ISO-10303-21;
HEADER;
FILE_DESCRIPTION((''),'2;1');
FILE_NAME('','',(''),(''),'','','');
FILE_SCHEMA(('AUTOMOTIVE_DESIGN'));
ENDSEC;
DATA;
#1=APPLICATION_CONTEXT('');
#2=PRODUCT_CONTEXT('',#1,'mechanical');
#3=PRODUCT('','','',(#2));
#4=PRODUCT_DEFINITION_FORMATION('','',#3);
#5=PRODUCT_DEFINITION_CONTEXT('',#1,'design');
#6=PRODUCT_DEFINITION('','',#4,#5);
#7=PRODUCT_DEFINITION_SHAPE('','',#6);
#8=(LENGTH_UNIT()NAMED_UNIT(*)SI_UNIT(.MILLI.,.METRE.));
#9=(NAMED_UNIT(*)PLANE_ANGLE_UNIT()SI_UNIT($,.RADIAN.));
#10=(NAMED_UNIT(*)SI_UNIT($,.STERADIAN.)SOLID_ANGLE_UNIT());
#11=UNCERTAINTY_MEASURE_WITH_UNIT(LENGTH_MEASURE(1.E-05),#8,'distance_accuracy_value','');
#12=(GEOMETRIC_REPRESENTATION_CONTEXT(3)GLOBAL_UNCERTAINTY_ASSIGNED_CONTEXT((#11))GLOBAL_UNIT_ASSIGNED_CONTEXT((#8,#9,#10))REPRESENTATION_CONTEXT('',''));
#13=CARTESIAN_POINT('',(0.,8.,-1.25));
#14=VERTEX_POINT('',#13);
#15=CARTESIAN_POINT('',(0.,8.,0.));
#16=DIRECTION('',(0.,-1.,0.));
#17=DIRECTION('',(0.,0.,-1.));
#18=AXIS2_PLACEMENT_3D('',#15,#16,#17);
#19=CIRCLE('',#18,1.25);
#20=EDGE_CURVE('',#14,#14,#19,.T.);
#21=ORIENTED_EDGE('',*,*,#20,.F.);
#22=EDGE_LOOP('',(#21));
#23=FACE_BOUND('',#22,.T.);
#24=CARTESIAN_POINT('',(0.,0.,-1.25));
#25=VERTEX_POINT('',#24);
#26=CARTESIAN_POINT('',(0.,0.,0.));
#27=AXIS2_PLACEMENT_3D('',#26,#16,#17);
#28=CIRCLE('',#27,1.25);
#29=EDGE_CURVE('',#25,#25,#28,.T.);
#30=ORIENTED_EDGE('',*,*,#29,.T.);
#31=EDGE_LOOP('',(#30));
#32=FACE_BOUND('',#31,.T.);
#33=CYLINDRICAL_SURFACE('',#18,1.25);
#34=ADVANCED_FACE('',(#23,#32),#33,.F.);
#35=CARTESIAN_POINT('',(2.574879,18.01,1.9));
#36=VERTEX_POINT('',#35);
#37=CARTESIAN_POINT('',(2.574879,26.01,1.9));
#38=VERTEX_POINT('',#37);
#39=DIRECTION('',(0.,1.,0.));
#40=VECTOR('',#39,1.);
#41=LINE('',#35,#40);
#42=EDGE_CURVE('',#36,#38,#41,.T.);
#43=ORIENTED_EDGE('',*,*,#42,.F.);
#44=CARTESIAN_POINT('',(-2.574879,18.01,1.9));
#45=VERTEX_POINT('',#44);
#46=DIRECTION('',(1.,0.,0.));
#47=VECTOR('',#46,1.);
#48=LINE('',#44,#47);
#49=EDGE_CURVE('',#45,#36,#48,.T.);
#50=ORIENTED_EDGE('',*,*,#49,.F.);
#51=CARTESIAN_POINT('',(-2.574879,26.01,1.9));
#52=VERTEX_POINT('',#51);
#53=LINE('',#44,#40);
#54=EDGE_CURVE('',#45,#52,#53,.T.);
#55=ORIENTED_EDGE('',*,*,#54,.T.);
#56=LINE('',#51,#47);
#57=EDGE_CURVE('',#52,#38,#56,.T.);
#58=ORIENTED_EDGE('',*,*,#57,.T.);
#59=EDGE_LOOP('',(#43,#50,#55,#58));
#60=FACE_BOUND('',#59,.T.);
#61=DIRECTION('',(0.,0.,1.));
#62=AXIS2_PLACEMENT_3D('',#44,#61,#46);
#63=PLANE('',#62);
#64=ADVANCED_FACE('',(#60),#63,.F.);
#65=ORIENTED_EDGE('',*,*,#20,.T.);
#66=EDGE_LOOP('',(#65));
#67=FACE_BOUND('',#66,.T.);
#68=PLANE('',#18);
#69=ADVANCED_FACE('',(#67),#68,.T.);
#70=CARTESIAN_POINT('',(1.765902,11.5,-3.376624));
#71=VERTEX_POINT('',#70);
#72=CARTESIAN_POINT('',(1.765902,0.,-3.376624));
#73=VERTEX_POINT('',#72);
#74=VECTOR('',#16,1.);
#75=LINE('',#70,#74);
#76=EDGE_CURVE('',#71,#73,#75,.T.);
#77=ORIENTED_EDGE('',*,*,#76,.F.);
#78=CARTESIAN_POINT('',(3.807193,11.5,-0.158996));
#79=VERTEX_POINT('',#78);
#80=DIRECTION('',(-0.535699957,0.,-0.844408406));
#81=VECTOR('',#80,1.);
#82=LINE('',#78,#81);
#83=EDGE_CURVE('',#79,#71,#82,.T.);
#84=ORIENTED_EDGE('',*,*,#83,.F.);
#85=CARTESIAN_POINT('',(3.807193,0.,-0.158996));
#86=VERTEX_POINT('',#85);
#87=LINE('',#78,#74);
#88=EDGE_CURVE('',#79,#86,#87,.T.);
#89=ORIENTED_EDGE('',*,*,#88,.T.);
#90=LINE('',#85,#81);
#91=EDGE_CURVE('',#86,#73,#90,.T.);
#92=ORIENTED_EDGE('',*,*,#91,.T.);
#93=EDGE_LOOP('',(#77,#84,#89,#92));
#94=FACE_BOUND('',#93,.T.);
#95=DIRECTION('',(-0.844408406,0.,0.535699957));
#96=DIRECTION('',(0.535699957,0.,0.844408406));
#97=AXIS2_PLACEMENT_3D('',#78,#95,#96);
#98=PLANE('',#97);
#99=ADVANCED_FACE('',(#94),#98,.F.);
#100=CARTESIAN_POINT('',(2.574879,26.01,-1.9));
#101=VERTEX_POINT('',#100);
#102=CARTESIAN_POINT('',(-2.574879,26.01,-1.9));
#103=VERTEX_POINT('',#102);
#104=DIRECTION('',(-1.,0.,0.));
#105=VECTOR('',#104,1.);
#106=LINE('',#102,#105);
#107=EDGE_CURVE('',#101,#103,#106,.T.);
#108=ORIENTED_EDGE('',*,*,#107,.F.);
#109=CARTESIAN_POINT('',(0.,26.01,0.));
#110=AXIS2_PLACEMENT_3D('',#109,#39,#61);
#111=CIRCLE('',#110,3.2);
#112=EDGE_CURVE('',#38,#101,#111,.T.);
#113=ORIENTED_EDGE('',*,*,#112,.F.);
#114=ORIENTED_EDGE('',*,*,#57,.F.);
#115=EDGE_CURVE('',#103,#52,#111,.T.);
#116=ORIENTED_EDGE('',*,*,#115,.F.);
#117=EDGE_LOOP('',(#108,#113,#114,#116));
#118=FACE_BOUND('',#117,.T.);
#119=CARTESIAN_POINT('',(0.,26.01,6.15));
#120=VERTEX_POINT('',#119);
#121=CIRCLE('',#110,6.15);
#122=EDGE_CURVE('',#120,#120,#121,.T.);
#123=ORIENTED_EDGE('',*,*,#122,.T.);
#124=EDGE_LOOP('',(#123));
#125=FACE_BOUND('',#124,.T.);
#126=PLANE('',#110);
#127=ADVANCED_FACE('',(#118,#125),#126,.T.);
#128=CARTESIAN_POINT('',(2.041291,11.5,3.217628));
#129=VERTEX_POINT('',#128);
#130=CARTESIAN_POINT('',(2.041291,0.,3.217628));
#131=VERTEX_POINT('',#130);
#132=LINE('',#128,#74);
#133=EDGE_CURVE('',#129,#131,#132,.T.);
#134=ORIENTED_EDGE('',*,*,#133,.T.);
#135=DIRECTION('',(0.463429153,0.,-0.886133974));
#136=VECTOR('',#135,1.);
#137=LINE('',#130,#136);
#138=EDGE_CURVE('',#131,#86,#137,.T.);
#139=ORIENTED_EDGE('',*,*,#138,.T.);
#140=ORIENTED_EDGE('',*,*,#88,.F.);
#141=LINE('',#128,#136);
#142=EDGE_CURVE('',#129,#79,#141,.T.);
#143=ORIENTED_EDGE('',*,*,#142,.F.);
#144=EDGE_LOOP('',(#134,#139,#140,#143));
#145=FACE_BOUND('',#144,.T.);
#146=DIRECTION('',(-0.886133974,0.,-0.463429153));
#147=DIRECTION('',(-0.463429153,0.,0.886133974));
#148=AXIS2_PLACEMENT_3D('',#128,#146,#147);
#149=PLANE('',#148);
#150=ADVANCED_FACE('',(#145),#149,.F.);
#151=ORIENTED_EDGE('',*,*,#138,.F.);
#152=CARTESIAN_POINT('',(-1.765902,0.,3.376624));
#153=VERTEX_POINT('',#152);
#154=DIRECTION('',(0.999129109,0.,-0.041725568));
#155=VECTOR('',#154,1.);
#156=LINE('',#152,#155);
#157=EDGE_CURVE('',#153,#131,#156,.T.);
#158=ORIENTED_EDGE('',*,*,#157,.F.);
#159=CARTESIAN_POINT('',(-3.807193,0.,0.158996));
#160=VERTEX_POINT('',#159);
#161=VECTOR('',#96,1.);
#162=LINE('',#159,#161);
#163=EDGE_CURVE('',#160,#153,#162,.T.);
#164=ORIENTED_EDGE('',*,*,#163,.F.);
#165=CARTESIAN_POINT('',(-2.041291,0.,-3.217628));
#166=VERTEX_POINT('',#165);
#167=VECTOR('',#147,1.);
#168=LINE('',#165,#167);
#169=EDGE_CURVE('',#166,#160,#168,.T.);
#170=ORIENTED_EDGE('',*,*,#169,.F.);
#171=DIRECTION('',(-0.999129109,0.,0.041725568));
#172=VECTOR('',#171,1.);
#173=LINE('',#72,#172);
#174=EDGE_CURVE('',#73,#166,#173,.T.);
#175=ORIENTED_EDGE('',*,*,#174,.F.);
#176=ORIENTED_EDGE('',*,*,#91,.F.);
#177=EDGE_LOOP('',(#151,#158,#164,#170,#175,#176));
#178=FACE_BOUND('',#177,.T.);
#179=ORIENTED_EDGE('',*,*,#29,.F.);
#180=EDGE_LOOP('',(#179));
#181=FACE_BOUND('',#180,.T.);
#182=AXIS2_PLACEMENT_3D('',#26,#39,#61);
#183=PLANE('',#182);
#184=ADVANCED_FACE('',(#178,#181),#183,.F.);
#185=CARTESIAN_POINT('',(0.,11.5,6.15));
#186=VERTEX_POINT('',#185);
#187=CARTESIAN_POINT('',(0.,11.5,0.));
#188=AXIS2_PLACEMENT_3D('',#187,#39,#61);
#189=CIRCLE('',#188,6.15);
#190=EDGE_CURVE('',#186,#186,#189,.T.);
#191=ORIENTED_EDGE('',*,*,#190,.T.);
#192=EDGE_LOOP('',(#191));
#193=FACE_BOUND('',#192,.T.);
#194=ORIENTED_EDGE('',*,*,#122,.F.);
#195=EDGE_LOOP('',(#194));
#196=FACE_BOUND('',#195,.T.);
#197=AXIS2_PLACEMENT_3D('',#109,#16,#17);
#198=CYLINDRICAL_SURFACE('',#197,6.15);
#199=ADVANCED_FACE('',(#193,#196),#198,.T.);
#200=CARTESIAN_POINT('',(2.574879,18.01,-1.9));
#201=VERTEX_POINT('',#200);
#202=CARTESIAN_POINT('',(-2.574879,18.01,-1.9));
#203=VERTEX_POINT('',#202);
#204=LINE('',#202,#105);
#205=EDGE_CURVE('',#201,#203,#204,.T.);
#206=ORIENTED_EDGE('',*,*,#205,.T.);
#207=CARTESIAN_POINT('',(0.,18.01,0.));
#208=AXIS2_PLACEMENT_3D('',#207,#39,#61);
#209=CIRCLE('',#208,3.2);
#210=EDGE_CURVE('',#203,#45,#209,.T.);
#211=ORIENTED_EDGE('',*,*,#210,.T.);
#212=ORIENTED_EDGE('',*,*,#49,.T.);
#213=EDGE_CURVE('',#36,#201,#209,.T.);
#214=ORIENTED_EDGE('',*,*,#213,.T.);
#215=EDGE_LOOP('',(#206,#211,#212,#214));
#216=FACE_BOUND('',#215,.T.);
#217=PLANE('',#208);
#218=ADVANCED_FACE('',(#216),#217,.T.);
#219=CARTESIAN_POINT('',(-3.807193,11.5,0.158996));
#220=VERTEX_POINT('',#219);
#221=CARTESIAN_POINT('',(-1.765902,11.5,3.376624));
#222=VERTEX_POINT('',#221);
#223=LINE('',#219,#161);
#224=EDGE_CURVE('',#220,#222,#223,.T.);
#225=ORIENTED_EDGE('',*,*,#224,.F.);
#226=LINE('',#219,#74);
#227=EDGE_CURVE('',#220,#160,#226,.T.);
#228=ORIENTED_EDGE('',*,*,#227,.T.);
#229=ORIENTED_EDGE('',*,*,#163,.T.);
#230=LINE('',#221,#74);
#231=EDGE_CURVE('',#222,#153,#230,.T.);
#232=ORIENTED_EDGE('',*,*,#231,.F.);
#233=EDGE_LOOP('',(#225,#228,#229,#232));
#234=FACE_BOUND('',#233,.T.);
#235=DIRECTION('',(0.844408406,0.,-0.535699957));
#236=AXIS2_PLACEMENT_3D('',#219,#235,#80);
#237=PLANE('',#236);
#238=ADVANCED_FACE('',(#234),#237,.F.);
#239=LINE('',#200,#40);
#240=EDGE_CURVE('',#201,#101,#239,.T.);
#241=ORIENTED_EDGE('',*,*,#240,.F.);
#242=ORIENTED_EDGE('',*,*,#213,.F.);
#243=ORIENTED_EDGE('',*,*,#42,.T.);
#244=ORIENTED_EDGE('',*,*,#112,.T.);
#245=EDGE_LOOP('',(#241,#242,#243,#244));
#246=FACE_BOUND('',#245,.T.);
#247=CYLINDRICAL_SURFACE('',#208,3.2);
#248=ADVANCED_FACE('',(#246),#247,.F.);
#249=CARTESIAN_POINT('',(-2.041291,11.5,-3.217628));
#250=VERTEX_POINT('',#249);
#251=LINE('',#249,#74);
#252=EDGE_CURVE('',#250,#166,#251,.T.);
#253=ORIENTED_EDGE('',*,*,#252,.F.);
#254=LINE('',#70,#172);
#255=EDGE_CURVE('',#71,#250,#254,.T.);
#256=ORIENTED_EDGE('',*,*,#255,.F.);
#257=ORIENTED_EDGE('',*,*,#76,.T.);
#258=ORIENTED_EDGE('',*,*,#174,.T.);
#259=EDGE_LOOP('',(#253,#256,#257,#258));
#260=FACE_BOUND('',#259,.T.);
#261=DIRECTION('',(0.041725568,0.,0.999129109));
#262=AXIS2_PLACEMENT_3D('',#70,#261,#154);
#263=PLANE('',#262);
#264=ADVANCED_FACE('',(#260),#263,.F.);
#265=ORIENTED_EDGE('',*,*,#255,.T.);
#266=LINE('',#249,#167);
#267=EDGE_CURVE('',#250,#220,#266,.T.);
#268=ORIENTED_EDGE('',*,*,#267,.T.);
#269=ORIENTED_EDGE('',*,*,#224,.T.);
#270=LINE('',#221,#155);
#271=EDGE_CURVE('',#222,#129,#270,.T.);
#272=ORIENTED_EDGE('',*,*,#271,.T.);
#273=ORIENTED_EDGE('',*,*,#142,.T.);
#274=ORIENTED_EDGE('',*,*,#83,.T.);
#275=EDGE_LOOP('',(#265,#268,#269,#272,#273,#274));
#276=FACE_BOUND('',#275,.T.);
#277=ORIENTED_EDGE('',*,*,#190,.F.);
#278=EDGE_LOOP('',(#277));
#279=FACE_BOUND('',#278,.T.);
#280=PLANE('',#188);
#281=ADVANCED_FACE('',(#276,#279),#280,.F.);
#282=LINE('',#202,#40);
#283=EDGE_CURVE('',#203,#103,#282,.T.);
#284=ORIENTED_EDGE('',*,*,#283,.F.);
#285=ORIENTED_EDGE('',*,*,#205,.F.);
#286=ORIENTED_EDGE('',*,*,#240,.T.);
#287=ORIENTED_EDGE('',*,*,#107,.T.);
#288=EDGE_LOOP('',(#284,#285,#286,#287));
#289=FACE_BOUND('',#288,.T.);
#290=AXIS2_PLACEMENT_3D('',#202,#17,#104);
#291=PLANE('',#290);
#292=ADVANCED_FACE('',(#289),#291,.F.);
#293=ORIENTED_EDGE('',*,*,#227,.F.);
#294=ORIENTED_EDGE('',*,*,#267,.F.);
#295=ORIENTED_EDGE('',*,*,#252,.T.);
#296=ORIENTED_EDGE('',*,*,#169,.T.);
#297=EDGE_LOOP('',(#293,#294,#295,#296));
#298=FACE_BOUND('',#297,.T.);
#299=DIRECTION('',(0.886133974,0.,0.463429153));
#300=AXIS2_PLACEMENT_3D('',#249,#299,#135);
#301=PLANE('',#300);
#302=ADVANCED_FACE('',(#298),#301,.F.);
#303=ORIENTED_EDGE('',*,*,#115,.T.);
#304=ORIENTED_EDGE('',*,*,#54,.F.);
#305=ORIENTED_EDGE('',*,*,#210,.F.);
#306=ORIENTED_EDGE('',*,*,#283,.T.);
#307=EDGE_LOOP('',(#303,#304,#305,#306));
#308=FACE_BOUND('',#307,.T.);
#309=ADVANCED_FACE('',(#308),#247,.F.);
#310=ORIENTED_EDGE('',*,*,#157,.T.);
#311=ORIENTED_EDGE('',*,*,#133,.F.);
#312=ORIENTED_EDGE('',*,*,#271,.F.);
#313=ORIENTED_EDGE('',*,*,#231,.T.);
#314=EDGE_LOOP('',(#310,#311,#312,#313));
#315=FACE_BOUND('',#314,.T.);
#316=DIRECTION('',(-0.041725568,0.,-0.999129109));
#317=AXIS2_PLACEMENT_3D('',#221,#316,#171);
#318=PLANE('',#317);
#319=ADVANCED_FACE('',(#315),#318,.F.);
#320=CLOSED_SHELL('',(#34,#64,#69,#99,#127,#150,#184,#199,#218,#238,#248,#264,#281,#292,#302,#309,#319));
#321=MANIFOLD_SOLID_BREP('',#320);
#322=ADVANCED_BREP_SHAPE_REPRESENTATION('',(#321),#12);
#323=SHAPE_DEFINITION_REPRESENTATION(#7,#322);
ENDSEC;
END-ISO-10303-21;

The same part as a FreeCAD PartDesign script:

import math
import FreeCAD as App
import Part
import Sketcher

V = App.Vector


def add_polygon(sketch, points):
    """Adds a closed chain of lines whose ends are joined by coincident constraints."""
    first, n = sketch.GeometryCount, len(points)
    for a, b in zip(points, points[1:] + points[:1]):
        sketch.addGeometry(Part.LineSegment(App.Vector(*a, 0), App.Vector(*b, 0)), False)
    for i in range(n):
        sketch.addConstraint(Sketcher.Constraint("Coincident", first + i, 2, first + (i + 1) % n, 1))

doc = App.newDocument("Part")
body = doc.addObject("PartDesign::Body", "Body")

# Sketch on XZ plane
sketch1 = body.newObject("Sketcher::SketchObject", "Sketch")
sketch1.AttachmentSupport = (doc.getObject("XZ_Plane"), [""])
sketch1.MapMode = "FlatFace"
add_polygon(sketch1, [(2.041291, 3.217628), (3.807193, -0.158996), (1.765902, -3.376624), (-2.041291, -3.217628), (-3.807193, 0.158996), (-1.765902, 3.376624)])  # lines 0-5
sketch1.addConstraint(Sketcher.Constraint("Symmetric", 0, 2, 3, 2, -1, 1))
sketch1.addConstraint(Sketcher.Constraint("Symmetric", 1, 2, 4, 2, -1, 1))
sketch1.addConstraint(Sketcher.Constraint("Symmetric", 2, 2, 5, 2, -1, 1))
sketch1.addConstraint(Sketcher.Constraint("Equal", 0, 1))
sketch1.addConstraint(Sketcher.Constraint("Equal", 1, 2))
sketch1.addConstraint(Sketcher.Constraint("Distance", 0, 3.810512))
sketch1.addConstraint(Sketcher.Constraint("DistanceX", 2, 2, -1, 1, 2.041291))
sketch1.addConstraint(Sketcher.Constraint("DistanceY", 2, 2, -1, 1, 3.217628))
sketch1.addConstraint(Sketcher.Constraint("DistanceX", 1, 2, 0, 2, 2.041291))
pad1 = body.newObject("PartDesign::Pad", "Pad")
pad1.Profile = sketch1
pad1.Length = 11.5
pad1.Reversed = True

# Sketch on XZ plane
sketch2 = body.newObject("Sketcher::SketchObject", "Sketch001")
sketch2.AttachmentSupport = (doc.getObject("XZ_Plane"), [""])
sketch2.MapMode = "FlatFace"
sketch2.AttachmentOffset = App.Placement(V(0, 0, -11.5), App.Rotation())
sketch2.addGeometry(Part.Circle(V(0, 0, 0), V(0, 0, 1), 6.15), False)
sketch2.addConstraint(Sketcher.Constraint("Coincident", 0, 3, -1, 1))
sketch2.addConstraint(Sketcher.Constraint("Diameter", 0, 12.3))
pad2 = body.newObject("PartDesign::Pad", "Pad001")
pad2.Profile = sketch2
pad2.Length = 14.51
pad2.Reversed = True

# Sketch on XZ plane
sketch3 = body.newObject("Sketcher::SketchObject", "Sketch002")
sketch3.AttachmentSupport = (doc.getObject("XZ_Plane"), [""])
sketch3.MapMode = "FlatFace"
sketch3.addGeometry(Part.Circle(V(0, 0, 0), V(0, 0, 1), 1.25), False)
sketch3.addConstraint(Sketcher.Constraint("Coincident", 0, 3, -1, 1))
sketch3.addConstraint(Sketcher.Constraint("Diameter", 0, 2.5))
pocket1 = body.newObject("PartDesign::Pocket", "Pocket")
pocket1.Profile = sketch3
pocket1.Length = 8

# Sketch on XZ plane
sketch4 = body.newObject("Sketcher::SketchObject", "Sketch003")
sketch4.AttachmentSupport = (doc.getObject("XZ_Plane"), [""])
sketch4.MapMode = "FlatFace"
sketch4.AttachmentOffset = App.Placement(V(0, 0, -26.01), App.Rotation())
sketch4.addGeometry(Part.LineSegment(V(2.574879, -1.9, 0), V(-2.574879, -1.9, 0)), False)
sketch4.addGeometry(Part.ArcOfCircle(Part.Circle(V(0, 0, 0), V(0, 0, 1), 3.2), math.radians(143.576426), math.radians(216.423574)), False)
sketch4.addGeometry(Part.LineSegment(V(-2.574879, 1.9, 0), V(2.574879, 1.9, 0)), False)
sketch4.addGeometry(Part.ArcOfCircle(Part.Circle(V(0, 0, 0), V(0, 0, 1), 3.2), math.radians(-36.423574), math.radians(36.423574)), False)
sketch4.addConstraint(Sketcher.Constraint("Coincident", 0, 2, 1, 2))
sketch4.addConstraint(Sketcher.Constraint("Coincident", 1, 1, 2, 1))
sketch4.addConstraint(Sketcher.Constraint("Coincident", 2, 2, 3, 2))
sketch4.addConstraint(Sketcher.Constraint("Coincident", 3, 1, 0, 1))
sketch4.addConstraint(Sketcher.Constraint("Horizontal", 0))
sketch4.addConstraint(Sketcher.Constraint("Horizontal", 2))
sketch4.addConstraint(Sketcher.Constraint("Coincident", 1, 3, -1, 1))
sketch4.addConstraint(Sketcher.Constraint("Coincident", 3, 3, -1, 1))
sketch4.addConstraint(Sketcher.Constraint("Equal", 1, 3))
sketch4.addConstraint(Sketcher.Constraint("Vertical", 0, 2, 1, 1))
sketch4.addConstraint(Sketcher.Constraint("Radius", 1, 3.2))
sketch4.addConstraint(Sketcher.Constraint("DistanceY", 0, 2, -1, 1, 1.9))
pocket2 = body.newObject("PartDesign::Pocket", "Pocket001")
pocket2.Profile = sketch4
pocket2.Length = 8
pocket2.Reversed = True

doc.recompute()
